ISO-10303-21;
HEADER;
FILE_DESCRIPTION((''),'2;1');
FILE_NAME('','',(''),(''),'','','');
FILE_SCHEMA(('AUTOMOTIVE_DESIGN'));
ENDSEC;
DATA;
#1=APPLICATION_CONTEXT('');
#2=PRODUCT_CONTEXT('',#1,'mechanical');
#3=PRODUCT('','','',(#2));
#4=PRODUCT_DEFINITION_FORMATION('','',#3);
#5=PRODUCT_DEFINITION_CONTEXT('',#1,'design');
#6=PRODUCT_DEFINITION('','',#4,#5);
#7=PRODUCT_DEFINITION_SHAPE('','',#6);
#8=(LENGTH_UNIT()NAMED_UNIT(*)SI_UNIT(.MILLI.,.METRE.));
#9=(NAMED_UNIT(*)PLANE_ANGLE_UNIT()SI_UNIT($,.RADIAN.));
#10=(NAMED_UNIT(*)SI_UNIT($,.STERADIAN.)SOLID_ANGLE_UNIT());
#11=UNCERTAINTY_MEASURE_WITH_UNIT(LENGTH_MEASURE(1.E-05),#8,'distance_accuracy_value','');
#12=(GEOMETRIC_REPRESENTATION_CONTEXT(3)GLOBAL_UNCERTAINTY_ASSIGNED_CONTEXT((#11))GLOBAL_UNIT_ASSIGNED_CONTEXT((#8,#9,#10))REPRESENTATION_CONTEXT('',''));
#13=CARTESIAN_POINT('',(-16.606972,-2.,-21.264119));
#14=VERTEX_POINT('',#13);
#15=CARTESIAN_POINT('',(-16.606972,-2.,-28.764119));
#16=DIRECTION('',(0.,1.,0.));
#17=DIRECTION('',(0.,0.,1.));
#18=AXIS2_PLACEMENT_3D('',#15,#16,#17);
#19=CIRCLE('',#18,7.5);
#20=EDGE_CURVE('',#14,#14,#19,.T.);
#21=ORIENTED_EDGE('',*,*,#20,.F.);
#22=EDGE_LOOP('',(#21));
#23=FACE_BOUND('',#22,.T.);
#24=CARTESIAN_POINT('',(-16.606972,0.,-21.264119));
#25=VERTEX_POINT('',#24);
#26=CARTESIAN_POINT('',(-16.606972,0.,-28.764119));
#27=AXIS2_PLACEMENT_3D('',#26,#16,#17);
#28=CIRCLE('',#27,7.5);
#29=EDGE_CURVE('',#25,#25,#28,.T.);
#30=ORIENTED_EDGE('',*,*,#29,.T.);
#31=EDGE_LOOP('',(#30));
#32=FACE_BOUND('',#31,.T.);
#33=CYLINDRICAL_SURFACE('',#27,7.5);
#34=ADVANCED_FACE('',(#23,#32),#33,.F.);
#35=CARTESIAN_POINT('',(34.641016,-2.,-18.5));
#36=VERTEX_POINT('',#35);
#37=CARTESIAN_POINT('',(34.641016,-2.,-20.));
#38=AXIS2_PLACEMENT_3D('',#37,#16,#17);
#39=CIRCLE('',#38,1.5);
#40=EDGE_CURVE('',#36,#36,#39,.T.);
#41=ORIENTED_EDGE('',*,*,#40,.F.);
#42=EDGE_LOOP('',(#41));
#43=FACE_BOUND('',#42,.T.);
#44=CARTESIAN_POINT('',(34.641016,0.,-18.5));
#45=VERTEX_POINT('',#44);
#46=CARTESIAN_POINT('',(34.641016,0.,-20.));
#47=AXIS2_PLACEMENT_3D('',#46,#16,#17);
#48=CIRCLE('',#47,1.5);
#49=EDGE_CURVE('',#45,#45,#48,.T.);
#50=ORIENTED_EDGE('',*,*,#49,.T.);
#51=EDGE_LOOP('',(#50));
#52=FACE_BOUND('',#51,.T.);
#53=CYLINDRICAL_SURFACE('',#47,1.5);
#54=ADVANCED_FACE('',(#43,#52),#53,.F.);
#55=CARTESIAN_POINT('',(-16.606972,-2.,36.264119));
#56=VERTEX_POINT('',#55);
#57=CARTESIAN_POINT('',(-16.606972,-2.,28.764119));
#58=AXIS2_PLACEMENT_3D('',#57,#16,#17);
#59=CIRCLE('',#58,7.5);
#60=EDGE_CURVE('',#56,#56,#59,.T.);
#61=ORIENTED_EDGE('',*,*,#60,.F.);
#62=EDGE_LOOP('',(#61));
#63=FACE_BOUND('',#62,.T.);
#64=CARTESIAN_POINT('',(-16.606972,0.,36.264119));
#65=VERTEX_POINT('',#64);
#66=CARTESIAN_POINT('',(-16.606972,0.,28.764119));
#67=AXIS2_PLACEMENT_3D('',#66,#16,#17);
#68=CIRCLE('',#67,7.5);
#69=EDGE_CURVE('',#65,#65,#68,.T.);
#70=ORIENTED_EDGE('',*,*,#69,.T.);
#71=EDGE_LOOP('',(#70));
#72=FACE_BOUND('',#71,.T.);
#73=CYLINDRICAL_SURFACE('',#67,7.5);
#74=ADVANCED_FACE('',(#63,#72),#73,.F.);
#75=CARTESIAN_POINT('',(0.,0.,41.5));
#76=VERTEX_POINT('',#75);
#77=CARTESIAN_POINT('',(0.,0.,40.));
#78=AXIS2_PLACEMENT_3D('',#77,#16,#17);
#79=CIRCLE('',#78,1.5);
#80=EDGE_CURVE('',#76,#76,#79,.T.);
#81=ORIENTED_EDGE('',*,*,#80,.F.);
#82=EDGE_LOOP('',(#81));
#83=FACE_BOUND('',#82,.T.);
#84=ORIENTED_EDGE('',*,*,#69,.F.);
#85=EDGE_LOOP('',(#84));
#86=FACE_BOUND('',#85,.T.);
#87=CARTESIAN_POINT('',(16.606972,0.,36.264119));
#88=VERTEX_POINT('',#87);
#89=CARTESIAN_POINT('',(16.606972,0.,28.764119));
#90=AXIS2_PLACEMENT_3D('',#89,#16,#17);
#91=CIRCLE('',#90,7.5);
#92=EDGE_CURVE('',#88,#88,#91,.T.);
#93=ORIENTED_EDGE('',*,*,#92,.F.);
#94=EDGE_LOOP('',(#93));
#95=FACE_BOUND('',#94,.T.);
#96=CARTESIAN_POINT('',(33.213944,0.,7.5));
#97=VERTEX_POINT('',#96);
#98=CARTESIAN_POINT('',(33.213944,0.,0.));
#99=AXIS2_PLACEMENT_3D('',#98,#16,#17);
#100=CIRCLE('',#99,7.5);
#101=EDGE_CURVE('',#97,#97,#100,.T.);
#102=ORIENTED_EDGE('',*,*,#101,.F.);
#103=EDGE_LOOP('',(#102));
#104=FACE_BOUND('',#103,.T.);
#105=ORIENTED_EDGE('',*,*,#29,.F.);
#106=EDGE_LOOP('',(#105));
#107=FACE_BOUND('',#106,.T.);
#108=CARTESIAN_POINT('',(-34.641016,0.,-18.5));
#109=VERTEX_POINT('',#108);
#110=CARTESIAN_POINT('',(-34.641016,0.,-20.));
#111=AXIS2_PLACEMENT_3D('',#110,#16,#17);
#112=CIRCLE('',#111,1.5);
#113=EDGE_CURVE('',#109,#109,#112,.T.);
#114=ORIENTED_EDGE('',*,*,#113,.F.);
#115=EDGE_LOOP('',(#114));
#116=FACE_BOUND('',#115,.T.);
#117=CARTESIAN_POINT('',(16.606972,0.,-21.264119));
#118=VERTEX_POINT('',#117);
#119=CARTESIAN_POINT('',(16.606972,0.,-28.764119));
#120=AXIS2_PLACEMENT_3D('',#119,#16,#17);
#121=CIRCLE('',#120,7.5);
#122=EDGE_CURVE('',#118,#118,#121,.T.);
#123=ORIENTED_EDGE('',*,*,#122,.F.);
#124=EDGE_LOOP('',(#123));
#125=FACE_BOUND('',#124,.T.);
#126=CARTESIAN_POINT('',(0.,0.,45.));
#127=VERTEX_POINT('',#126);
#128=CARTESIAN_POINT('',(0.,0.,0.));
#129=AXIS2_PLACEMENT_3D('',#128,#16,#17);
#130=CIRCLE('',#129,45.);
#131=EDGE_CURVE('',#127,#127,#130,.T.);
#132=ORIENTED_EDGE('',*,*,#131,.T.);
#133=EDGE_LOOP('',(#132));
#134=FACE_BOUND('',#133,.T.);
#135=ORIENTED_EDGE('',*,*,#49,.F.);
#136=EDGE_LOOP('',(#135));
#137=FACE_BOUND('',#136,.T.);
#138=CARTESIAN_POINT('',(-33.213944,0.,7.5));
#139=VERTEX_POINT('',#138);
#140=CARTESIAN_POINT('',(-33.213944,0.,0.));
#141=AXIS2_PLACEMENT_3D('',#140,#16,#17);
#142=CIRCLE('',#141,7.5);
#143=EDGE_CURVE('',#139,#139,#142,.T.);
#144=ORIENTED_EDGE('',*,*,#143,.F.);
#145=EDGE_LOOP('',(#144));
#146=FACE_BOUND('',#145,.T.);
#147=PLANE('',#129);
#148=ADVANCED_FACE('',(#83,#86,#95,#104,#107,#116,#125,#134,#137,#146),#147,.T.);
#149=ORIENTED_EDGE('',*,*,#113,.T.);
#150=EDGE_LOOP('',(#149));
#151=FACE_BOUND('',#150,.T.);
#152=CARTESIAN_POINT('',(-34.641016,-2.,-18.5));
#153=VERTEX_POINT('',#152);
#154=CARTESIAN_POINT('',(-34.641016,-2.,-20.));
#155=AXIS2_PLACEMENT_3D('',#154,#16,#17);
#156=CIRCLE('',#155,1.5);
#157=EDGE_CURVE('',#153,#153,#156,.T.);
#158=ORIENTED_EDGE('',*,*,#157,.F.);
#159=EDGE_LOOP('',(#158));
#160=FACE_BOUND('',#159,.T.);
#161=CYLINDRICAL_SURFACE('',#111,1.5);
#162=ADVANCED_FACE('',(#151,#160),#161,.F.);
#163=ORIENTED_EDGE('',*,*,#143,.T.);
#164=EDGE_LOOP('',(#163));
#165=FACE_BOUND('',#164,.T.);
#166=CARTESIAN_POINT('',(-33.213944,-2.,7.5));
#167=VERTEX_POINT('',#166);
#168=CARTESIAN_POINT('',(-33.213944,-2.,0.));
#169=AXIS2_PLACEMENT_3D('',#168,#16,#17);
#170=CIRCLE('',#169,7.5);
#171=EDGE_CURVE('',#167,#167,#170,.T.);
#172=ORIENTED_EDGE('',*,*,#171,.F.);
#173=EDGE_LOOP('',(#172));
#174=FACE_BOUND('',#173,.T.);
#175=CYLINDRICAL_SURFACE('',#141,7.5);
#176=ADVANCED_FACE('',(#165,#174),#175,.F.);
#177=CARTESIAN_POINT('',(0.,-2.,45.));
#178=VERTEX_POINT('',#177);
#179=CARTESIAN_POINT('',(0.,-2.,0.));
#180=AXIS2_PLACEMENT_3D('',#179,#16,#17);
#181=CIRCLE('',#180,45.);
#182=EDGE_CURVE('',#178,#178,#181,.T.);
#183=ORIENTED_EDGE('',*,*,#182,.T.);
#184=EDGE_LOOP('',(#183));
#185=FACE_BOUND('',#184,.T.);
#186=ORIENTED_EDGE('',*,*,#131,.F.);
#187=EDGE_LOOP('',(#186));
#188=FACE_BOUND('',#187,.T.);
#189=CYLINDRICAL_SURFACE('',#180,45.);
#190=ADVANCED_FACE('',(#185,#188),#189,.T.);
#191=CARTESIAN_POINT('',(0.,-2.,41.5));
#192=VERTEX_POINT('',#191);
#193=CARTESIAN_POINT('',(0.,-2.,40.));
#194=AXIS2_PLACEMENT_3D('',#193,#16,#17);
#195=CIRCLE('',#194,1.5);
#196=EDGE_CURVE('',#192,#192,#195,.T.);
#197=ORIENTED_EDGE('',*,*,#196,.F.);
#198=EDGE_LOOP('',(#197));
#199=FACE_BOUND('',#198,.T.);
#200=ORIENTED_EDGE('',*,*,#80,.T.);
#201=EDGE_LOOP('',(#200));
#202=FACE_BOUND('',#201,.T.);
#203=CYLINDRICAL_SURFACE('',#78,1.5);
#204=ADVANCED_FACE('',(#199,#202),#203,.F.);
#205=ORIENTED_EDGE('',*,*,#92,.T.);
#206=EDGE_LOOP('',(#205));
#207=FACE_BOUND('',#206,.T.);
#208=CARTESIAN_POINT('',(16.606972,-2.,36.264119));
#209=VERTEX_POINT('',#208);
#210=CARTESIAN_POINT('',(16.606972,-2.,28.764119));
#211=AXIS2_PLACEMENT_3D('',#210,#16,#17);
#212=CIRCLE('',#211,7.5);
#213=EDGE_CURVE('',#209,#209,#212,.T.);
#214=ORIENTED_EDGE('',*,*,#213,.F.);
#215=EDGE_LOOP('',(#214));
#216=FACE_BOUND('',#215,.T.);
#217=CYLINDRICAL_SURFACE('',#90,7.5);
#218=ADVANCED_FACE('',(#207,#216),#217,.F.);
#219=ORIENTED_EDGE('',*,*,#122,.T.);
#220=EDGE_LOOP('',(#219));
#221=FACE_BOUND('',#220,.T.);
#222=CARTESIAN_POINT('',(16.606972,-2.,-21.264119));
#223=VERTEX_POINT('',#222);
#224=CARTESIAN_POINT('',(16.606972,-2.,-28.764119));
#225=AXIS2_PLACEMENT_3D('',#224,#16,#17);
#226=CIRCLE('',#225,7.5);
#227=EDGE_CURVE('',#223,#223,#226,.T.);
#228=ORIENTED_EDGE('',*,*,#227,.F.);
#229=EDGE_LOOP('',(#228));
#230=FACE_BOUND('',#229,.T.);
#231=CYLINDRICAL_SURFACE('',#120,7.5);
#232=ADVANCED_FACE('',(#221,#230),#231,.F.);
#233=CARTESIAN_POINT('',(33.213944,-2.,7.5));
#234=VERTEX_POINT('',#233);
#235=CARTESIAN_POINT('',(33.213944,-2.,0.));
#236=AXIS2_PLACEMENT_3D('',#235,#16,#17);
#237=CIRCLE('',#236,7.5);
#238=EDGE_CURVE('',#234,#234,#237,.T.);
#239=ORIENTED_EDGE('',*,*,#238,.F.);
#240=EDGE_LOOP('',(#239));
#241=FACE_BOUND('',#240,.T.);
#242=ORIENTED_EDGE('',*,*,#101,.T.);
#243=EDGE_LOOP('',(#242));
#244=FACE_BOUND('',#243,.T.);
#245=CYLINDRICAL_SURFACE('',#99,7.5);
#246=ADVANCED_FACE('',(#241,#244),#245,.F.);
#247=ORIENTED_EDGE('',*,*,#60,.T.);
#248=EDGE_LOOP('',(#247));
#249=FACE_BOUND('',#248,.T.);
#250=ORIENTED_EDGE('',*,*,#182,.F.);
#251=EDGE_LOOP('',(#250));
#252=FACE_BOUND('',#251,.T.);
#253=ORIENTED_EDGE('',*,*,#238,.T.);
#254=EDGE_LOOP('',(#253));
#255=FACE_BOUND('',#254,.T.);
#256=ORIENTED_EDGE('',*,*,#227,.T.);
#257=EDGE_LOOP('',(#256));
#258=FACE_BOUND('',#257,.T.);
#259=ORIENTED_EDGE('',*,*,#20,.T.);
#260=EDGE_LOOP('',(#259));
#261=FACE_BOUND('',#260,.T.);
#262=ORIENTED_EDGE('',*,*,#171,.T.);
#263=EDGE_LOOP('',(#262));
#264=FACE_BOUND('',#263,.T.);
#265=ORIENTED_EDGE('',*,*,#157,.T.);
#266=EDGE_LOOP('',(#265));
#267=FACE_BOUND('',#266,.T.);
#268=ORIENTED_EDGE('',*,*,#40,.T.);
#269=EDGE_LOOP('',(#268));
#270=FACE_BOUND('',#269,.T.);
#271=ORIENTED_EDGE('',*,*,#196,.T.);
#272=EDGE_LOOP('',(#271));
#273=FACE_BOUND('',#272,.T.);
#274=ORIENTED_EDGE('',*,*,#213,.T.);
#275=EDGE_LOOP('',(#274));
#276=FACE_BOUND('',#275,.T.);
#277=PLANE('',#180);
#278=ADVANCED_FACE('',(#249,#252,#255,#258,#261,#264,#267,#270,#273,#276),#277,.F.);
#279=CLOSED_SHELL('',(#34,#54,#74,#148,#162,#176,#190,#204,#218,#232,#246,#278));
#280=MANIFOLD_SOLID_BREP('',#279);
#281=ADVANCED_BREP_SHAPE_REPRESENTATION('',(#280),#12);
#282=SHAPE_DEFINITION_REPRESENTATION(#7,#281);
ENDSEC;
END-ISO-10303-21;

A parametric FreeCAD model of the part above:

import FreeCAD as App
import Part
import Sketcher
Q = App.Units.Quantity

doc = App.newDocument("Part")
params = doc.addObject("Spreadsheet::Sheet", "Params")
for row, (alias, value) in enumerate([
    ("sketch1_diameter", "90 mm"),
    ("pad1_length", "2 mm"),
    ("sketch2_diameter", "15 mm"),
    ("hole_diameter", "15 mm"),
    ("sketch3_diameter", "3 mm"),
    ("hole2_diameter", "3 mm"),
], start=1):
    params.set(f"A{row}", alias)
    params.set(f"B{row}", "=" + value)
    params.setAlias(f"B{row}", alias)

body = doc.addObject("PartDesign::Body", "Body")

sketch1 = doc.addObject("Sketcher::SketchObject", "Sketch")
body.addObject(sketch1)
sketch1.AttachmentSupport = (doc.XZ_Plane, [""])
sketch1.MapMode = "FlatFace"
sketch1.addGeometry(Part.Circle(App.Vector(0, 0, 0), App.Vector(0, 0, 1), 45), False)
sketch1.addConstraint([
    Sketcher.Constraint("Coincident", 0, 3, -1, 1),
    Sketcher.Constraint("Diameter", 0, Q("90 mm")),
])
sketch1.setExpression("Constraints[1]", "Params.sketch1_diameter")
pad1 = doc.addObject("PartDesign::Pad", "Pad")
body.addObject(pad1)
pad1.Profile = sketch1
pad1.setExpression("Length", "Params.pad1_length")

sketch2 = doc.addObject("Sketcher::SketchObject", "Sketch001")
body.addObject(sketch2)
sketch2.AttachmentSupport = (doc.XZ_Plane, [""])
sketch2.MapMode = "FlatFace"
sketch2.addGeometry([
    Part.Circle(App.Vector(-17, -29, 0), App.Vector(0, 0, 1), 8),
    Part.Circle(App.Vector(-17, 29, 0), App.Vector(0, 0, 1), 8),
    Part.Circle(App.Vector(33, 0, 0), App.Vector(0, 0, 1), 8),
    Part.Circle(App.Vector(17, -29, 0), App.Vector(0, 0, 1), 8),
    Part.Circle(App.Vector(17, 29, 0), App.Vector(0, 0, 1), 8),
    Part.Circle(App.Vector(-33, 0, 0), App.Vector(0, 0, 1), 8),
], False)
sketch2.addConstraint([
    Sketcher.Constraint("Equal", 0, 1),
    Sketcher.Constraint("Equal", 1, 2),
    Sketcher.Constraint("Equal", 2, 3),
    Sketcher.Constraint("Equal", 3, 4),
    Sketcher.Constraint("Equal", 4, 5),
    Sketcher.Constraint("Symmetric", 1, 3, 3, 3, -1, 1),
    Sketcher.Constraint("Symmetric", 0, 3, 4, 3, -1, 1),
    Sketcher.Constraint("Symmetric", 2, 3, 5, 3, -1, 1),
    Sketcher.Constraint("Symmetric", 0, 3, 3, 3, -2),
    Sketcher.Constraint("PointOnObject", 2, 3, -1),
    Sketcher.Constraint("Diameter", 0, Q("15 mm")),
    Sketcher.Constraint("DistanceX", 0, 3, -1, 1, Q("16.606972 mm")),
    Sketcher.Constraint("DistanceY", 0, 3, -1, 1, Q("28.764119 mm")),
    Sketcher.Constraint("DistanceX", 3, 3, 2, 3, Q("16.606972 mm")),
])
sketch2.setExpression("Constraints[10]", "Params.sketch2_diameter")
doc.recompute()
hole = doc.addObject("PartDesign::Hole", "Hole")
body.addObject(hole)
hole.Profile = sketch2
hole.ThreadType = "None"
hole.setExpression("Diameter", "Params.hole_diameter")
hole.DepthType = "ThroughAll"
hole.Reversed = True

sketch3 = doc.addObject("Sketcher::SketchObject", "Sketch002")
body.addObject(sketch3)
sketch3.AttachmentSupport = (doc.XZ_Plane, [""])
sketch3.MapMode = "FlatFace"
sketch3.addGeometry([
    Part.Circle(App.Vector(-34.6, -20, 0), App.Vector(0, 0, 1), 1.5),
    Part.Circle(App.Vector(0, 40, 0), App.Vector(0, 0, 1), 1.5),
    Part.Circle(App.Vector(34.6, -20, 0), App.Vector(0, 0, 1), 1.5),
], False)
sketch3.addConstraint([
    Sketcher.Constraint("Equal", 0, 1),
    Sketcher.Constraint("Equal", 1, 2),
    Sketcher.Constraint("Symmetric", 0, 3, 2, 3, -2),
    Sketcher.Constraint("PointOnObject", 1, 3, -2),
    Sketcher.Constraint("Diameter", 0, Q("3 mm")),
    Sketcher.Constraint("DistanceY", 0, 3, -1, 1, Q("20 mm")),
    Sketcher.Constraint("DistanceY", -1, 1, 1, 3, Q("40 mm")),
    Sketcher.Constraint("DistanceX", 0, 3, -1, 1, Q("34.641016 mm")),
])
sketch3.setExpression("Constraints[4]", "Params.sketch3_diameter")
doc.recompute()
hole2 = doc.addObject("PartDesign::Hole", "Hole001")
body.addObject(hole2)
hole2.Profile = sketch3
hole2.ThreadType = "None"
hole2.setExpression("Diameter", "Params.hole2_diameter")
hole2.DepthType = "ThroughAll"
hole2.Reversed = True

doc.recompute()
